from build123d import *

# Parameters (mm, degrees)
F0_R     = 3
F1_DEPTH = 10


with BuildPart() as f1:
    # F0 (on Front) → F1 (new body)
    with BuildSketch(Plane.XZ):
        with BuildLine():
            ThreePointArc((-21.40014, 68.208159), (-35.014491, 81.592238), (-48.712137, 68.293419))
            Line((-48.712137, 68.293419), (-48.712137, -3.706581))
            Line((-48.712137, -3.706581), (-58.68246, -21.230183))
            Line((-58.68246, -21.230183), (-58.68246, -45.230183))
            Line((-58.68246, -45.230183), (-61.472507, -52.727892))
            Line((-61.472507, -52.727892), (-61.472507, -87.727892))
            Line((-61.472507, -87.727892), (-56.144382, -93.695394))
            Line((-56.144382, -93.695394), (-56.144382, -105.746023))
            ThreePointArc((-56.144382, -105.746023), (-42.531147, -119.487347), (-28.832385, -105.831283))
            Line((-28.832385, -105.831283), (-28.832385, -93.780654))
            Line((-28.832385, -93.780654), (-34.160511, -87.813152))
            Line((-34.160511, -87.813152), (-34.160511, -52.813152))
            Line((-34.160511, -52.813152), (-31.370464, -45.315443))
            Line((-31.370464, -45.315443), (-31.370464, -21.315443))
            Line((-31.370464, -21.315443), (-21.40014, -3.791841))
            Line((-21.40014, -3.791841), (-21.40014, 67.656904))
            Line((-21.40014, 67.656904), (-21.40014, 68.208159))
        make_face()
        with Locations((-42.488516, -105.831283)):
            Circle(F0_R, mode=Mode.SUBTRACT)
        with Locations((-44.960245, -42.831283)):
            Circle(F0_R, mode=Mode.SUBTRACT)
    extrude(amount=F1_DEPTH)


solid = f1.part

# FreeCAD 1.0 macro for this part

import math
import FreeCAD as App
import Part
import Sketcher

doc = App.newDocument("Part")
params = doc.addObject("Spreadsheet::Sheet", "Params")
for row, (alias, value) in enumerate([
    ("sketch1_diameter", "6 mm"),
    ("sketch1_diameter2", "6 mm"),
    ("sketch1_height", "72 mm"),
    ("sketch1_height2", "24 mm"),
    ("sketch1_height3", "35 mm"),
    ("pad1_length", "10 mm"),
], start=1):
    params.set(f"A{row}", alias)
    params.set(f"B{row}", "=" + value)
    params.setAlias(f"B{row}", alias)

body = doc.addObject("PartDesign::Body", "Body")

# Sketch on XZ plane
sketch1 = body.newObject("Sketcher::SketchObject", "Sketch")
sketch1.AttachmentSupport = (doc.getObject("XZ_Plane"), [""])
sketch1.MapMode = "FlatFace"
sketch1.addGeometry(Part.ArcOfCircle(Part.Circle(App.Vector(-35.057132, 67.932531, 0), App.Vector(0, 0, 1), 13.659773), math.radians(1.156195), math.radians(178.486085)), False)
sketch1.addGeometry(Part.LineSegment(App.Vector(-48.712137, 68.293419, 0), App.Vector(-48.712137, -3.706581, 0)), False)
sketch1.addGeometry(Part.LineSegment(App.Vector(-48.712137, -3.706581, 0), App.Vector(-58.68246, -21.230183, 0)), False)
sketch1.addGeometry(Part.LineSegment(App.Vector(-58.68246, -21.230183, 0), App.Vector(-58.68246, -45.230183, 0)), False)
sketch1.addGeometry(Part.LineSegment(App.Vector(-58.68246, -45.230183, 0), App.Vector(-61.472507, -52.727892, 0)), False)
sketch1.addGeometry(Part.LineSegment(App.Vector(-61.472507, -52.727892, 0), App.Vector(-61.472507, -87.727892, 0)), False)
sketch1.addGeometry(Part.LineSegment(App.Vector(-61.472507, -87.727892, 0), App.Vector(-56.144382, -93.695394, 0)), False)
sketch1.addGeometry(Part.LineSegment(App.Vector(-56.144382, -93.695394, 0), App.Vector(-56.144382, -105.746023, 0)), False)
sketch1.addGeometry(Part.ArcOfCircle(Part.Circle(App.Vector(-42.488517, -105.831282, 0), App.Vector(0, 0, 1), 13.656132), math.radians(179.642284), math.radians(359.999996)), False)
sketch1.addGeometry(Part.LineSegment(App.Vector(-28.832385, -105.831283, 0), App.Vector(-28.832385, -93.780654, 0)), False)
sketch1.addGeometry(Part.LineSegment(App.Vector(-28.832385, -93.780654, 0), App.Vector(-34.160511, -87.813152, 0)), False)
sketch1.addGeometry(Part.LineSegment(App.Vector(-34.160511, -87.813152, 0), App.Vector(-34.160511, -52.813152, 0)), False)
sketch1.addGeometry(Part.LineSegment(App.Vector(-34.160511, -52.813152, 0), App.Vector(-31.370464, -45.315443, 0)), False)
sketch1.addGeometry(Part.LineSegment(App.Vector(-31.370464, -45.315443, 0), App.Vector(-31.370464, -21.315443, 0)), False)
sketch1.addGeometry(Part.LineSegment(App.Vector(-31.370464, -21.315443, 0), App.Vector(-21.40014, -3.791841, 0)), False)
sketch1.addGeometry(Part.LineSegment(App.Vector(-21.40014, -3.791841, 0), App.Vector(-21.40014, 68.208159, 0)), False)
sketch1.addGeometry(Part.Circle(App.Vector(-42.488516, -105.831283, 0), App.Vector(0, 0, 1), 3), False)
sketch1.addGeometry(Part.Circle(App.Vector(-44.960245, -42.831283, 0), App.Vector(0, 0, 1), 3), False)
sketch1.addConstraint(Sketcher.Constraint("Coincident", 0, 2, 1, 1))
sketch1.addConstraint(Sketcher.Constraint("Coincident", 1, 2, 2, 1))
sketch1.addConstraint(Sketcher.Constraint("Coincident", 2, 2, 3, 1))
sketch1.addConstraint(Sketcher.Constraint("Coincident", 3, 2, 4, 1))
sketch1.addConstraint(Sketcher.Constraint("Coincident", 4, 2, 5, 1))
sketch1.addConstraint(Sketcher.Constraint("Coincident", 5, 2, 6, 1))
sketch1.addConstraint(Sketcher.Constraint("Coincident", 6, 2, 7, 1))
sketch1.addConstraint(Sketcher.Constraint("Coincident", 7, 2, 8, 1))
sketch1.addConstraint(Sketcher.Constraint("Coincident", 8, 2, 9, 1))
sketch1.addConstraint(Sketcher.Constraint("Coincident", 9, 2, 10, 1))
sketch1.addConstraint(Sketcher.Constraint("Coincident", 10, 2, 11, 1))
sketch1.addConstraint(Sketcher.Constraint("Coincident", 11, 2, 12, 1))
sketch1.addConstraint(Sketcher.Constraint("Coincident", 12, 2, 13, 1))
sketch1.addConstraint(Sketcher.Constraint("Coincident", 13, 2, 14, 1))
sketch1.addConstraint(Sketcher.Constraint("Coincident", 14, 2, 15, 1))
sketch1.addConstraint(Sketcher.Constraint("Coincident", 15, 2, 0, 1))
sketch1.addConstraint(Sketcher.Constraint("Vertical", 1))
sketch1.addConstraint(Sketcher.Constraint("Vertical", 3))
sketch1.addConstraint(Sketcher.Constraint("Vertical", 5))
sketch1.addConstraint(Sketcher.Constraint("Vertical", 7))
sketch1.addConstraint(Sketcher.Constraint("Vertical", 9))
sketch1.addConstraint(Sketcher.Constraint("Vertical", 11))
sketch1.addConstraint(Sketcher.Constraint("Vertical", 13))
sketch1.addConstraint(Sketcher.Constraint("Vertical", 15))
sketch1.addConstraint(Sketcher.Constraint("Coincident", 16, 3, 8, 3))
sketch1.addConstraint(Sketcher.Constraint("Diameter", 16, 6.0))
sketch1.addConstraint(Sketcher.Constraint("Diameter", 17, 6.0))
sketch1.addConstraint(Sketcher.Constraint("DistanceY", 1, 2, 1, 1, 72.0))
sketch1.addConstraint(Sketcher.Constraint("DistanceY", 3, 2, 3, 1, 24.0))
sketch1.addConstraint(Sketcher.Constraint("DistanceY", 5, 2, 5, 1, 35.0))
sketch1.addConstraint(Sketcher.Constraint("DistanceY", 11, 1, 11, 2, 35.0))
sketch1.addConstraint(Sketcher.Constraint("DistanceY", 13, 1, 13, 2, 24.0))
sketch1.addConstraint(Sketcher.Constraint("DistanceY", 15, 1, 15, 2, 72.0))
sketch1.addConstraint(Sketcher.Constraint("Distance", 4, 8.0))
sketch1.addConstraint(Sketcher.Constraint("Distance", 6, 8.0))
sketch1.addConstraint(Sketcher.Constraint("Distance", 10, 8.0))
sketch1.addConstraint(Sketcher.Constraint("Distance", 12, 8.0))
sketch1.addConstraint(Sketcher.Constraint("DistanceY", 8, 3, 17, 3, 62.999999))
sketch1.addConstraint(Sketcher.Constraint("Radius", 8, 13.656132))
sketch1.addConstraint(Sketcher.Constraint("Radius", 0, 13.659773))
sketch1.addConstraint(Sketcher.Constraint("DistanceY", 7, 2, 7, 1, 12.050629))
sketch1.addConstraint(Sketcher.Constraint("DistanceY", 9, 1, 9, 2, 12.050629))
sketch1.addConstraint(Sketcher.Constraint("DistanceY", 17, 3, 0, 2, 111.124702))
sketch1.addConstraint(Sketcher.Constraint("DistanceY", 17, 3, 2, 2, 21.6011))
sketch1.addConstraint(Sketcher.Constraint("DistanceY", 6, 2, 5, 2, 5.967502))
sketch1.addConstraint(Sketcher.Constraint("DistanceY", 9, 2, 10, 2, 5.967502))
sketch1.addConstraint(Sketcher.Constraint("DistanceY", 13, 2, 14, 2, 17.523602))
sketch1.addConstraint(Sketcher.Constraint("Distance", 14, 20.161448))
sketch1.addConstraint(Sketcher.Constraint("DistanceY", -1, 1, 0, 3, 67.932531))
sketch1.addConstraint(Sketcher.Constraint("DistanceY", 8, 3, -1, 1, 105.831282))
sketch1.addConstraint(Sketcher.Constraint("DistanceX", 2, 2, -1, 1, 58.68246))
sketch1.addConstraint(Sketcher.Constraint("DistanceY", 4, 2, -1, 1, 52.727892))
sketch1.addConstraint(Sketcher.Constraint("DistanceX", 14, 2, -1, 1, 21.40014))
sketch1.addConstraint(Sketcher.Constraint("DistanceY", 14, 2, -1, 1, 3.791841))
sketch1.addConstraint(Sketcher.Constraint("DistanceX", 17, 3, 8, 3, 2.471728))
sketch1.setExpression("Constraints[25]", "Params.sketch1_diameter")
sketch1.setExpression("Constraints[26]", "Params.sketch1_diameter2")
sketch1.setExpression("Constraints[27]", "Params.sketch1_height")
sketch1.setExpression("Constraints[28]", "Params.sketch1_height2")
sketch1.setExpression("Constraints[29]", "Params.sketch1_height3")
pad1 = body.newObject("PartDesign::Pad", "Pad")
pad1.Profile = sketch1
pad1.setExpression("Length", "Params.pad1_length")

doc.recompute()
